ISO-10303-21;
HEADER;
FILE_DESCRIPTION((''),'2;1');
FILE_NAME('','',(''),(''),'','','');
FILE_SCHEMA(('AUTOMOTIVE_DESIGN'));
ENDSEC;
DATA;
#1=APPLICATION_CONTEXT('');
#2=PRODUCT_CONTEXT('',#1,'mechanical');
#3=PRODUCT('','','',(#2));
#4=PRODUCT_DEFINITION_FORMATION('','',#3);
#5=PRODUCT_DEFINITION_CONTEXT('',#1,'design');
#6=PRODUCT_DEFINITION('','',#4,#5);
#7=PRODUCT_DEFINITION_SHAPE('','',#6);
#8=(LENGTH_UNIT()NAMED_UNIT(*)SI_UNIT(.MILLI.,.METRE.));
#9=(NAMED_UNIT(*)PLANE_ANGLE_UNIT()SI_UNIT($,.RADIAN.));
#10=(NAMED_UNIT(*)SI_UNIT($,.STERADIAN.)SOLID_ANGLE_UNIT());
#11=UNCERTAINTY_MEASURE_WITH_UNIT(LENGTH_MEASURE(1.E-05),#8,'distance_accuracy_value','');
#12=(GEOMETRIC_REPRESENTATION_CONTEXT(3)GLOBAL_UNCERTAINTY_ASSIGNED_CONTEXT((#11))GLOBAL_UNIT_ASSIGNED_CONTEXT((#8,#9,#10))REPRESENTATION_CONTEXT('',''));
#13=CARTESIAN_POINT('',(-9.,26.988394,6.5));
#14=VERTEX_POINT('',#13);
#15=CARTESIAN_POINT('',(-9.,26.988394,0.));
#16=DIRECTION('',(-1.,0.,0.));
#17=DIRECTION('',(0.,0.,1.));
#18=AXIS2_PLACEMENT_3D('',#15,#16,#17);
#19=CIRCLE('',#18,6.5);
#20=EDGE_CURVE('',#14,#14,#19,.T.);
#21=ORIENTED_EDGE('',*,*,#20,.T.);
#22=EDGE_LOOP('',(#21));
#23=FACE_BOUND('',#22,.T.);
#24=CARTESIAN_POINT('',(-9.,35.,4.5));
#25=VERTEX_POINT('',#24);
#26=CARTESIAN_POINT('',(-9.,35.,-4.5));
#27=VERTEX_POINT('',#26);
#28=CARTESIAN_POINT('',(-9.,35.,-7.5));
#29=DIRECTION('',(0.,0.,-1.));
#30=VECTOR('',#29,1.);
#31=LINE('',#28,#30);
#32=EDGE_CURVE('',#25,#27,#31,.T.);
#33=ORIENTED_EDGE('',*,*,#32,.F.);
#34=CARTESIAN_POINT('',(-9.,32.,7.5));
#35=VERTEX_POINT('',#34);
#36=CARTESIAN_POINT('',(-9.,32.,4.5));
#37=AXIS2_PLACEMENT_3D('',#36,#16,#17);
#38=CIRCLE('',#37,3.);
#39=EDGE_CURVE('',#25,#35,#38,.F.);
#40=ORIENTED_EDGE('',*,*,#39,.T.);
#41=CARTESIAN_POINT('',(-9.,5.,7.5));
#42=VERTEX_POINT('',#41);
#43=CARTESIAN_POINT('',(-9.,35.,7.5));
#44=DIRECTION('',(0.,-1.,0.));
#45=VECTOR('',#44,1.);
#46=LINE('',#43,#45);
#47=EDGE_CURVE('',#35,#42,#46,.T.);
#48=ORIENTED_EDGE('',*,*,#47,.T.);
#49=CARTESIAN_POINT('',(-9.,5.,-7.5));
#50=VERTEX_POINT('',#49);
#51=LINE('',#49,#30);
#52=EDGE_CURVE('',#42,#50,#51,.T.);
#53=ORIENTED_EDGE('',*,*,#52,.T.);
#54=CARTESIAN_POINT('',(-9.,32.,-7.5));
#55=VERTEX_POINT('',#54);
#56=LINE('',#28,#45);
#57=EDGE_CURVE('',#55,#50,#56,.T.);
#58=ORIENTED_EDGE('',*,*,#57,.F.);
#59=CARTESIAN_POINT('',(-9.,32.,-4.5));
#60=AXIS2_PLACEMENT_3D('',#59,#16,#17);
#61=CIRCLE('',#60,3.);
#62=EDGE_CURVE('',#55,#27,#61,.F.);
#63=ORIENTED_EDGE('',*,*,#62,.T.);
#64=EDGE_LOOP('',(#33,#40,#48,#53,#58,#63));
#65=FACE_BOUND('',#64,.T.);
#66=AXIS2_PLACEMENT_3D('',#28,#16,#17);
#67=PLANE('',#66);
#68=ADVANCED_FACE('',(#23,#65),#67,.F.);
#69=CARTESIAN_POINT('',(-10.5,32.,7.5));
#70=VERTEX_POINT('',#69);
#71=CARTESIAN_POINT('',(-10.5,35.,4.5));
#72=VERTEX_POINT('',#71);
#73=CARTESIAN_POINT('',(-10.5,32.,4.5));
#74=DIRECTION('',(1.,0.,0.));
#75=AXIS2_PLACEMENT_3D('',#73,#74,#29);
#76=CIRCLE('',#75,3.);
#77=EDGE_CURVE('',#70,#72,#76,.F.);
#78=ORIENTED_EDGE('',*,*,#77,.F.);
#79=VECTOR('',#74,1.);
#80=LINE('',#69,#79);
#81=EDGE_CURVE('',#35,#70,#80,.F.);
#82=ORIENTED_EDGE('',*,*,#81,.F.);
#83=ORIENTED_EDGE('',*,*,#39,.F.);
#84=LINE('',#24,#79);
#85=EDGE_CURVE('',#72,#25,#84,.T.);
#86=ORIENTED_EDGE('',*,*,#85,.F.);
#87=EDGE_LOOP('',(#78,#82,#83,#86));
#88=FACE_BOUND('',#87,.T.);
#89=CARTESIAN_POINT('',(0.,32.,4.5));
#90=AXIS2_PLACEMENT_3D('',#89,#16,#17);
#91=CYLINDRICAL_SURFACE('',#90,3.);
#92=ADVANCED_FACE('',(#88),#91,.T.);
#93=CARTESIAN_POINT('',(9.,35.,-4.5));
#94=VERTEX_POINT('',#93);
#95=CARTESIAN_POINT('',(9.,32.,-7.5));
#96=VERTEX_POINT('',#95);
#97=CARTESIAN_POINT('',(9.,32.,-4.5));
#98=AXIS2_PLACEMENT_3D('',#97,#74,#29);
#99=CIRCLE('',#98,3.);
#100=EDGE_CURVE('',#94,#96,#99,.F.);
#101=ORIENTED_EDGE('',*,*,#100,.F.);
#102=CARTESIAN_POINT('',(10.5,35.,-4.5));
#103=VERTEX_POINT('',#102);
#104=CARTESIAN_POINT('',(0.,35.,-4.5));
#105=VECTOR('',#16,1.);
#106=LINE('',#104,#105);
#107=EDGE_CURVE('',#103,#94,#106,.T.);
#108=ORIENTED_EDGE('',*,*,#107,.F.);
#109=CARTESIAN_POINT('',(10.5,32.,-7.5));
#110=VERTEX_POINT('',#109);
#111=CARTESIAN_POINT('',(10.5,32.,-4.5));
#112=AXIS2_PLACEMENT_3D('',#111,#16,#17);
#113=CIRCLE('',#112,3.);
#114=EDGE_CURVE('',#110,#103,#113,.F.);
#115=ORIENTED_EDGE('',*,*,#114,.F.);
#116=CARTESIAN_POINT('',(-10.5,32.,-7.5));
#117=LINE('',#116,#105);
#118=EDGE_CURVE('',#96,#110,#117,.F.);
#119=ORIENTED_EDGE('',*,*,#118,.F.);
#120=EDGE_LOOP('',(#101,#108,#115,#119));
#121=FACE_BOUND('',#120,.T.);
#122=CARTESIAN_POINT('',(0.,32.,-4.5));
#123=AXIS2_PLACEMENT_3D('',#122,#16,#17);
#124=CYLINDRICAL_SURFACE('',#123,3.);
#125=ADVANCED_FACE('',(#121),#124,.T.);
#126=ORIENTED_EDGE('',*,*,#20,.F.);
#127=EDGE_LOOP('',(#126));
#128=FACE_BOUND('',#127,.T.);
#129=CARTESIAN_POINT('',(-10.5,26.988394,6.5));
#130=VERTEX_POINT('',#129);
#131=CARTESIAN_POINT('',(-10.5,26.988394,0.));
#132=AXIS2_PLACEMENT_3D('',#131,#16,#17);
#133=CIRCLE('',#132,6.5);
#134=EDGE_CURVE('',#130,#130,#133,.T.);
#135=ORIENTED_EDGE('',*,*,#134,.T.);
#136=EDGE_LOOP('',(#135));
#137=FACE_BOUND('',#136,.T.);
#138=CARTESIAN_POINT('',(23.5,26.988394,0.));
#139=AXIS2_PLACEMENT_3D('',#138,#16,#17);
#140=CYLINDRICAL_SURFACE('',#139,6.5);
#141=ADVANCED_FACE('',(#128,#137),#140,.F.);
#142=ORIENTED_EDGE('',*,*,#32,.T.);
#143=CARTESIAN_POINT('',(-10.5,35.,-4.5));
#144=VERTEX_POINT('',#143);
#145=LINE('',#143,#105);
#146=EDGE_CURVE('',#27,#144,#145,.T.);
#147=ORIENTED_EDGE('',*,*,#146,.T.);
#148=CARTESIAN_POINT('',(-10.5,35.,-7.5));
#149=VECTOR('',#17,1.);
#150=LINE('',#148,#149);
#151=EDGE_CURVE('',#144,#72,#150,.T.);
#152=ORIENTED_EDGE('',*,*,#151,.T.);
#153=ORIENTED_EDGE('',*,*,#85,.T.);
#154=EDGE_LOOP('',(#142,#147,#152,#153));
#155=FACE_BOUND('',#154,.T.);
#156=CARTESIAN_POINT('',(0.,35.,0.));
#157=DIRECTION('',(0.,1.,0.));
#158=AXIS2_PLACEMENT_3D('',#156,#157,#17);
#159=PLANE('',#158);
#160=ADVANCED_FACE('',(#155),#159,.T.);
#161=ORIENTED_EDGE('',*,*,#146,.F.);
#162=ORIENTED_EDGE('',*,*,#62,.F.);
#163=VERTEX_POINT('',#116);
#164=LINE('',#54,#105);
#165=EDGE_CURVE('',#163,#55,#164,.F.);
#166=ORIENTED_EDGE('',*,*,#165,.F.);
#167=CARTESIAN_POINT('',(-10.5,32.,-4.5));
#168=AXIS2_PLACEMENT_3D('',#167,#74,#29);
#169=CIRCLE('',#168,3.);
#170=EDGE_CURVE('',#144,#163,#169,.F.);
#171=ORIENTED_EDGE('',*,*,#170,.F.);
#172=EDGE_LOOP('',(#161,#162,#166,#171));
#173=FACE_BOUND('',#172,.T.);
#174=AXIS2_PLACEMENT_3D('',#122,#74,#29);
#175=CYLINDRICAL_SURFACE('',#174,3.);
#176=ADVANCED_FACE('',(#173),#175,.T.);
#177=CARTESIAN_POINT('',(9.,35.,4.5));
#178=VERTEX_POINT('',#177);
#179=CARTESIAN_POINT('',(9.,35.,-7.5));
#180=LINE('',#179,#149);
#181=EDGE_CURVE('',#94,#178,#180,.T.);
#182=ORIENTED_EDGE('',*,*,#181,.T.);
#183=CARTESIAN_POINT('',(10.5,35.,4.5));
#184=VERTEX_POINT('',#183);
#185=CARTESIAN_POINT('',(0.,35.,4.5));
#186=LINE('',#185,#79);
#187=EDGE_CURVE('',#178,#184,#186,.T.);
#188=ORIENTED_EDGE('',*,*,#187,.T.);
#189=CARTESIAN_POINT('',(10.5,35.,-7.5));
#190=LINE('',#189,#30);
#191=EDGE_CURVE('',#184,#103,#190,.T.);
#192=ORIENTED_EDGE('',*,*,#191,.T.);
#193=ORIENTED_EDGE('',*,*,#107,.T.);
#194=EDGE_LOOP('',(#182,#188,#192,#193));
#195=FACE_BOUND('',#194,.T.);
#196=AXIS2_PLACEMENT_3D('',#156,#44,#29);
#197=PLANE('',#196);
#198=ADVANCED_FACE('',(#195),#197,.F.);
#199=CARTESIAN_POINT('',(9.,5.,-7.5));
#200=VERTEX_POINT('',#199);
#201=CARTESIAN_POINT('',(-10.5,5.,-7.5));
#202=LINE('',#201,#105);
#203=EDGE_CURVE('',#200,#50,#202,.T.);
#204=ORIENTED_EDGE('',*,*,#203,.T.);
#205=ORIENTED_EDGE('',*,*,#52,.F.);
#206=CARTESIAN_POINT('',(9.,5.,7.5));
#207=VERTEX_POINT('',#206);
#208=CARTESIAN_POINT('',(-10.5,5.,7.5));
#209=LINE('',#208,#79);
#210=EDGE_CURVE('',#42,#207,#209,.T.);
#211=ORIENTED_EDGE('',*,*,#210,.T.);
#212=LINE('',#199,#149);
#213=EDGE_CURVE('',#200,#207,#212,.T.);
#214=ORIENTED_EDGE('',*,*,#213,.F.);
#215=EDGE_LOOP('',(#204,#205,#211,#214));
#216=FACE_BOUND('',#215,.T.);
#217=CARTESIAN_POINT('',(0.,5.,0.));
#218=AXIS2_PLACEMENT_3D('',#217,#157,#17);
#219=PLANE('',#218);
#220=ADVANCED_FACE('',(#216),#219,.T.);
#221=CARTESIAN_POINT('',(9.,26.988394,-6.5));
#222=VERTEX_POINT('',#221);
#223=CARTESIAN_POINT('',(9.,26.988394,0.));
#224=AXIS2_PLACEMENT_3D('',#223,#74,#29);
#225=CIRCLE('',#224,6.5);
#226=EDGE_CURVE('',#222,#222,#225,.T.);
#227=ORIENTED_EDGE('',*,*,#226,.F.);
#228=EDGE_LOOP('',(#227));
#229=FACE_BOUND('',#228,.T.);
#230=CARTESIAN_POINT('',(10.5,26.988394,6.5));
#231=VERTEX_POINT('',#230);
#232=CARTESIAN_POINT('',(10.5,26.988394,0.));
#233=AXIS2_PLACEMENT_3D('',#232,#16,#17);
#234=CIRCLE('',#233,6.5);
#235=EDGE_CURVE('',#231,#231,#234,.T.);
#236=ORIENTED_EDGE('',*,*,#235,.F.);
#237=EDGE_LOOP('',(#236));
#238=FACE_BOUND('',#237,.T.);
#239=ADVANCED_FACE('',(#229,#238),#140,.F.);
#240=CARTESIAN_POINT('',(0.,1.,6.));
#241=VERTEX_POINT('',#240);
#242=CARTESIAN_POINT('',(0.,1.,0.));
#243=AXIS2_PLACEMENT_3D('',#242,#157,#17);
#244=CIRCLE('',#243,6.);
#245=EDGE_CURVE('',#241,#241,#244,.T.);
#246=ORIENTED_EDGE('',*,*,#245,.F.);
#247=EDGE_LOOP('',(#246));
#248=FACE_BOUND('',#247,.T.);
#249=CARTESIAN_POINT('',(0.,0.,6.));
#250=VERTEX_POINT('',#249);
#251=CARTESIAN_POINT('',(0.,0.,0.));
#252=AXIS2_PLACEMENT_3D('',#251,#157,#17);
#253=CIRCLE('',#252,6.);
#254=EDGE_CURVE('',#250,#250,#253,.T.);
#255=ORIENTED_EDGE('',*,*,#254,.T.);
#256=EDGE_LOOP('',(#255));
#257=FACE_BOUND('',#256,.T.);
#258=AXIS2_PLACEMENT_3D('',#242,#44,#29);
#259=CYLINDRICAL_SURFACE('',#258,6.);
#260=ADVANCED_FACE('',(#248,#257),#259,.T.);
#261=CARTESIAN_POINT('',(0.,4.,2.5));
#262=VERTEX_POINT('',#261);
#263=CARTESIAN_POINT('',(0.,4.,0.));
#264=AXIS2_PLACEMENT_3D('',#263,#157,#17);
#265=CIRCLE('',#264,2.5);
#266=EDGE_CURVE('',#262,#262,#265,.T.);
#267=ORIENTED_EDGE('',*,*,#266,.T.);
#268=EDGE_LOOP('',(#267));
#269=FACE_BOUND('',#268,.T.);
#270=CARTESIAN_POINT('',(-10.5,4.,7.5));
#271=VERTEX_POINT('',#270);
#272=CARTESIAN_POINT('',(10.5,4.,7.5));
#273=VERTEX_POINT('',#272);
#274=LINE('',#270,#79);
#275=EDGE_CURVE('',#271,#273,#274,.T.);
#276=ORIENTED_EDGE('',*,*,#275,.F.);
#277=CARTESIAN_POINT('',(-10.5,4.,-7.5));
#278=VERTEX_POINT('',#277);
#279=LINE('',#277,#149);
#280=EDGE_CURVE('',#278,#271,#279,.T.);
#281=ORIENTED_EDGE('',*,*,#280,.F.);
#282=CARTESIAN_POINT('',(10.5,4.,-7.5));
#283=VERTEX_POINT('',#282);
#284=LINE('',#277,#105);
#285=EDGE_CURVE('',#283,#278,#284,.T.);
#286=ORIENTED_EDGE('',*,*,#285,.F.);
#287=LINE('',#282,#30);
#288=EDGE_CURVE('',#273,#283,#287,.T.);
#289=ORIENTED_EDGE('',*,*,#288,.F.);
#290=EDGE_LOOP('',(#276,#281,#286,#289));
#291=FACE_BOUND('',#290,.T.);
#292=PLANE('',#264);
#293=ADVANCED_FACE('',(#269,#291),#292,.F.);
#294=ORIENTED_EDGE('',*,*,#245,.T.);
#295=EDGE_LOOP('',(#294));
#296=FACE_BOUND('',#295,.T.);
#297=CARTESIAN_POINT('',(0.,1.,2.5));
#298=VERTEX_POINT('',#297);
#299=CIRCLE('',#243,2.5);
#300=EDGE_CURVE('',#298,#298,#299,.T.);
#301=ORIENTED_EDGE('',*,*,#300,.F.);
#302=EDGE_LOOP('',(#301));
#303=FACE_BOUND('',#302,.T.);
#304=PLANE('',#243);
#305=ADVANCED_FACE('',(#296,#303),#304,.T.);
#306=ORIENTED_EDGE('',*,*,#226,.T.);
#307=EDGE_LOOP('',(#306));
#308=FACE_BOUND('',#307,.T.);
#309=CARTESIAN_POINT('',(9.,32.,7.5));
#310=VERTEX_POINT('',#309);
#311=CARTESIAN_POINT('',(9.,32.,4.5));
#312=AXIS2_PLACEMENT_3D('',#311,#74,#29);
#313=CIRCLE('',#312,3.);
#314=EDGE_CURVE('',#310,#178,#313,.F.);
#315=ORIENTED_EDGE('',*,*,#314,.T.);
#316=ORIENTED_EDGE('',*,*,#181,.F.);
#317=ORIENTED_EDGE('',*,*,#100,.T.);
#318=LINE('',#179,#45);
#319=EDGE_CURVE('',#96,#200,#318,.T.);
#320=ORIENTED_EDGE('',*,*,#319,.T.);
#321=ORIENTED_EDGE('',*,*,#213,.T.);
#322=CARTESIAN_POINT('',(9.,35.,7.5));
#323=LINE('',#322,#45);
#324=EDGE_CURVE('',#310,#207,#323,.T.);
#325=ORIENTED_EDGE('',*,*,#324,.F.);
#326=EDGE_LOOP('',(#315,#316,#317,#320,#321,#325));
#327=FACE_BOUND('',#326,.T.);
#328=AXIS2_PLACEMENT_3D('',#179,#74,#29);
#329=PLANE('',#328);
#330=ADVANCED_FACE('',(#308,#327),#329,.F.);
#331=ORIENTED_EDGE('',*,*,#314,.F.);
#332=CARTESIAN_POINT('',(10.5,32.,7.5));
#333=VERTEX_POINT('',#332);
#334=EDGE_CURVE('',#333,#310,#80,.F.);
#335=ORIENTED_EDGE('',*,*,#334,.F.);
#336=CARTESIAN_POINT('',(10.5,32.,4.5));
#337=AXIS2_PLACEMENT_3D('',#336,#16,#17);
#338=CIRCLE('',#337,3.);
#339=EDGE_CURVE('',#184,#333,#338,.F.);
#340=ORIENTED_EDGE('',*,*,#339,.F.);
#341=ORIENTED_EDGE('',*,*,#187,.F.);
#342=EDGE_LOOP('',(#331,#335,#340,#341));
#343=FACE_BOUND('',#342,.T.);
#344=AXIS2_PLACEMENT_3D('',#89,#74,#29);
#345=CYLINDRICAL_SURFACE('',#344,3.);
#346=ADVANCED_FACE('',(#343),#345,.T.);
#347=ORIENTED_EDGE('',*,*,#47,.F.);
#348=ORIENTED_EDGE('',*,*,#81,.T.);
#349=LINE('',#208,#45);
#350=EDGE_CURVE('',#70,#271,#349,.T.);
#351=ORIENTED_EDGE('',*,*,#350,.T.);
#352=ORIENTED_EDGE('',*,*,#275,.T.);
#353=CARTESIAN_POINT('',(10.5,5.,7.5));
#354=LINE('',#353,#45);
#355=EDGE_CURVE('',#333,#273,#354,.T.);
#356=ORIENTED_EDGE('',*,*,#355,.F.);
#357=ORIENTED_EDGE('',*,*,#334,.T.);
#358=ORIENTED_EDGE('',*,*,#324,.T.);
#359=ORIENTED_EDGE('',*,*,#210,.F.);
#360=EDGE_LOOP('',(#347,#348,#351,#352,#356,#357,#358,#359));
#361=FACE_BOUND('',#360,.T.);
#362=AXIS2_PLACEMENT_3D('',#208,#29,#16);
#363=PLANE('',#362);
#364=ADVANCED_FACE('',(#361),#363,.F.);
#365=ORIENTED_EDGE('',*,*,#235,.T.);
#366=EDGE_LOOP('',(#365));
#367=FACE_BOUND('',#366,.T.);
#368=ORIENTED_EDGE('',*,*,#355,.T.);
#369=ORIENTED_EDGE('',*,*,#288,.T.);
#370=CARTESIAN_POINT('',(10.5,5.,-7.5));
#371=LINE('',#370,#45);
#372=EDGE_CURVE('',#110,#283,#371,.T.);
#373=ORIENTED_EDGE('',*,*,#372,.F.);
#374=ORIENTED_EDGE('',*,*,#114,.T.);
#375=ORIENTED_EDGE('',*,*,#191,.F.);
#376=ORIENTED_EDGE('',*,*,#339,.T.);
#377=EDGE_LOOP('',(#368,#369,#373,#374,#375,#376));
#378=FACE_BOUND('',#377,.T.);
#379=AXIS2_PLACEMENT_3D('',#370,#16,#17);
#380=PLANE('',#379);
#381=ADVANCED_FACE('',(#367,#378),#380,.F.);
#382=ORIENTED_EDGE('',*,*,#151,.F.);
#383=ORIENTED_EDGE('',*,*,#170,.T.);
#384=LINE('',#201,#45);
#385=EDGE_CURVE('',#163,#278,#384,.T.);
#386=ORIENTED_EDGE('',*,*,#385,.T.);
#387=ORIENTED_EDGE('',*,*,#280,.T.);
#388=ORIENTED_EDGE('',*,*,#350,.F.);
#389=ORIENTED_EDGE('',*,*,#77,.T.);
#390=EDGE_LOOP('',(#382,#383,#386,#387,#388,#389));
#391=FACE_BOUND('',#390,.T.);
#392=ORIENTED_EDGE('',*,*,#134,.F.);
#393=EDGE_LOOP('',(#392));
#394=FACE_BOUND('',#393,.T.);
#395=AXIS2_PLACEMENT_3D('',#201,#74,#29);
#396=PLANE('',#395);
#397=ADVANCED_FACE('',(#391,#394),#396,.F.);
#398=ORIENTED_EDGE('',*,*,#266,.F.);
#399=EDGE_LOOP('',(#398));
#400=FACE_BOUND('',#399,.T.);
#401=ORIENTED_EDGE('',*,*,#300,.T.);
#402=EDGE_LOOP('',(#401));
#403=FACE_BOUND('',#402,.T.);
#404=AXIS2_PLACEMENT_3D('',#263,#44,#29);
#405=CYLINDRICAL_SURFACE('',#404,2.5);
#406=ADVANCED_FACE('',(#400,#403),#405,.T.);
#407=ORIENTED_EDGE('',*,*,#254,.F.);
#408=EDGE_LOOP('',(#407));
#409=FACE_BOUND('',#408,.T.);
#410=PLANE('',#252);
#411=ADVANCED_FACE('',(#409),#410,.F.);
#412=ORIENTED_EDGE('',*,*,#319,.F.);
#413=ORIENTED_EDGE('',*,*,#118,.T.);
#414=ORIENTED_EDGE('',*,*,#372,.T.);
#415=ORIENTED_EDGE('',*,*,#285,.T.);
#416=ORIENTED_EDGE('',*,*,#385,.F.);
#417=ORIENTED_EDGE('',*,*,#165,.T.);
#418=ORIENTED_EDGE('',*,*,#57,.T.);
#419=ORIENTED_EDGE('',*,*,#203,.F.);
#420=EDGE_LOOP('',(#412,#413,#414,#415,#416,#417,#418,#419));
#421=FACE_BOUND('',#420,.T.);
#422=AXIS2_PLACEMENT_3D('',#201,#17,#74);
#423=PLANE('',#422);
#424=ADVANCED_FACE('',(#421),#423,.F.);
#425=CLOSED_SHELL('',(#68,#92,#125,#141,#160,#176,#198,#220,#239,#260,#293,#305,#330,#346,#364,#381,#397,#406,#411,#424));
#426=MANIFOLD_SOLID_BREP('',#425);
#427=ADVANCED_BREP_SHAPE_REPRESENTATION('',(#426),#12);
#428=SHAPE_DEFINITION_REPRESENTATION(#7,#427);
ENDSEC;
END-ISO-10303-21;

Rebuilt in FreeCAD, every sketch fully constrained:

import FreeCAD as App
import Part
import Sketcher

V = App.Vector


def edges_at(feature, points):
    """Names of the edges that pass closest to the given points."""
    edges = feature.Shape.Edges
    near = lambda p: min(range(len(edges)), key=lambda i: edges[i].distToShape(Part.Vertex(*p))[0])
    return sorted({f"Edge{near(p) + 1}" for p in points})


def add_polygon(sketch, points):
    """Adds a closed chain of lines whose ends are joined by coincident constraints."""
    first, n = sketch.GeometryCount, len(points)
    for a, b in zip(points, points[1:] + points[:1]):
        sketch.addGeometry(Part.LineSegment(App.Vector(*a, 0), App.Vector(*b, 0)), False)
    for i in range(n):
        sketch.addConstraint(Sketcher.Constraint("Coincident", first + i, 2, first + (i + 1) % n, 1))

doc = App.newDocument("Part")
body = doc.addObject("PartDesign::Body", "Body")

sketch1 = doc.addObject("Sketcher::SketchObject", "Sketch")
body.addObject(sketch1)
sketch1.AttachmentSupport = (doc.XZ_Plane, [""])
sketch1.MapMode = "FlatFace"
sketch1.addGeometry(Part.Circle(V(0, 0, 0), V(0, 0, 1), 6), False)
sketch1.addConstraint([
    Sketcher.Constraint("Coincident", 0, 3, -1, 1),
    Sketcher.Constraint("Diameter", 0, 12.0),
])
pad1 = doc.addObject("PartDesign::Pad", "Pad")
body.addObject(pad1)
pad1.Profile = sketch1
pad1.Length = 1
pad1.Reversed = True

sketch2 = doc.addObject("Sketcher::SketchObject", "Sketch001")
body.addObject(sketch2)
sketch2.AttachmentSupport = (doc.XZ_Plane, [""])
sketch2.MapMode = "FlatFace"
sketch2.AttachmentOffset = App.Placement(V(0, 0, -1), App.Rotation())
sketch2.addGeometry(Part.Circle(V(0, 0, 0), V(0, 0, 1), 2.5), False)
sketch2.addConstraint([
    Sketcher.Constraint("Coincident", 0, 3, -1, 1),
    Sketcher.Constraint("Diameter", 0, 5.0),
])
pad2 = doc.addObject("PartDesign::Pad", "Pad001")
body.addObject(pad2)
pad2.Profile = sketch2
pad2.Length = 3
pad2.Reversed = True

sketch3 = doc.addObject("Sketcher::SketchObject", "Sketch002")
body.addObject(sketch3)
sketch3.AttachmentSupport = (doc.XZ_Plane, [""])
sketch3.MapMode = "FlatFace"
sketch3.AttachmentOffset = App.Placement(V(0, 0, -4), App.Rotation())
add_polygon(sketch3, [(-10.5, -7.5), (-10.5, 7.5), (10.5, 7.5), (10.5, -7.5)])
sketch3.addConstraint([
    Sketcher.Constraint("Vertical", 0),
    Sketcher.Constraint("Horizontal", 1),
    Sketcher.Constraint("Vertical", 2),
    Sketcher.Constraint("Horizontal", 3),
    Sketcher.Constraint("Symmetric", 0, 2, 2, 2, -1, 1),
    Sketcher.Constraint("DistanceX", 1, 1, 1, 2, 21.0),
    Sketcher.Constraint("DistanceY", 0, 1, 0, 2, 15.0),
])
pad3 = doc.addObject("PartDesign::Pad", "Pad002")
body.addObject(pad3)
pad3.Profile = sketch3
pad3.Length = 1
pad3.Reversed = True

sketch4 = doc.addObject("Sketcher::SketchObject", "Sketch003")
body.addObject(sketch4)
sketch4.AttachmentSupport = (doc.XZ_Plane, [""])
sketch4.MapMode = "FlatFace"
sketch4.AttachmentOffset = App.Placement(V(0, 0, -5), App.Rotation())
add_polygon(sketch4, [(-10.5, -7.5), (-10.5, 7.5), (-9, 7.5), (-9, -7.5)])
add_polygon(sketch4, [(9, -7.5), (9, 7.5), (10.5, 7.5), (10.5, -7.5)])
sketch4.addConstraint([
    Sketcher.Constraint("Vertical", 0),
    Sketcher.Constraint("Horizontal", 1),
    Sketcher.Constraint("Vertical", 2),
    Sketcher.Constraint("Horizontal", 3),
    Sketcher.Constraint("Vertical", 4),
    Sketcher.Constraint("Horizontal", 5),
    Sketcher.Constraint("Vertical", 6),
    Sketcher.Constraint("Horizontal", 7),
    Sketcher.Constraint("Symmetric", 2, 2, 4, 2, -1, 1),
    Sketcher.Constraint("Symmetric", 0, 2, 6, 2, -1, 1),
    Sketcher.Constraint("Horizontal", 1, 2, 4, 2),
    Sketcher.Constraint("DistanceY", 0, 1, 0, 2, 15.0),
    Sketcher.Constraint("DistanceX", 1, 1, 1, 2, 1.5),
    Sketcher.Constraint("DistanceX", 1, 2, -1, 1, 9.0),
])
pad4 = doc.addObject("PartDesign::Pad", "Pad003")
body.addObject(pad4)
pad4.Profile = sketch4
pad4.Length = 30
pad4.Reversed = True

sketch5 = doc.addObject("Sketcher::SketchObject", "Sketch004")
body.addObject(sketch5)
sketch5.AttachmentSupport = (doc.YZ_Plane, [""])
sketch5.MapMode = "FlatFace"
sketch5.AttachmentOffset = App.Placement(V(0, 0, -10.5), App.Rotation())
sketch5.addGeometry(Part.Circle(V(26.988394, 0, 0), V(0, 0, 1), 6.5), False)
sketch5.addConstraint([
    Sketcher.Constraint("PointOnObject", 0, 3, -1),
    Sketcher.Constraint("Diameter", 0, 13.0),
    Sketcher.Constraint("DistanceX", -1, 1, 0, 3, 26.988394),
])
pocket1 = doc.addObject("PartDesign::Pocket", "Pocket")
body.addObject(pocket1)
pocket1.Profile = sketch5
pocket1.Length = 34
pocket1.Reversed = True
doc.recompute()

fillet = doc.addObject("PartDesign::Fillet", "Fillet")
body.addObject(fillet)
fillet.Base = (pocket1, edges_at(pocket1, [
    (-9.75, 35, 7.5),
    (-9.75, 35, -7.5),
    (9.75, 35, -7.5),
    (9.75, 35, 7.5),
]))
fillet.Radius = 3

doc.recompute()
